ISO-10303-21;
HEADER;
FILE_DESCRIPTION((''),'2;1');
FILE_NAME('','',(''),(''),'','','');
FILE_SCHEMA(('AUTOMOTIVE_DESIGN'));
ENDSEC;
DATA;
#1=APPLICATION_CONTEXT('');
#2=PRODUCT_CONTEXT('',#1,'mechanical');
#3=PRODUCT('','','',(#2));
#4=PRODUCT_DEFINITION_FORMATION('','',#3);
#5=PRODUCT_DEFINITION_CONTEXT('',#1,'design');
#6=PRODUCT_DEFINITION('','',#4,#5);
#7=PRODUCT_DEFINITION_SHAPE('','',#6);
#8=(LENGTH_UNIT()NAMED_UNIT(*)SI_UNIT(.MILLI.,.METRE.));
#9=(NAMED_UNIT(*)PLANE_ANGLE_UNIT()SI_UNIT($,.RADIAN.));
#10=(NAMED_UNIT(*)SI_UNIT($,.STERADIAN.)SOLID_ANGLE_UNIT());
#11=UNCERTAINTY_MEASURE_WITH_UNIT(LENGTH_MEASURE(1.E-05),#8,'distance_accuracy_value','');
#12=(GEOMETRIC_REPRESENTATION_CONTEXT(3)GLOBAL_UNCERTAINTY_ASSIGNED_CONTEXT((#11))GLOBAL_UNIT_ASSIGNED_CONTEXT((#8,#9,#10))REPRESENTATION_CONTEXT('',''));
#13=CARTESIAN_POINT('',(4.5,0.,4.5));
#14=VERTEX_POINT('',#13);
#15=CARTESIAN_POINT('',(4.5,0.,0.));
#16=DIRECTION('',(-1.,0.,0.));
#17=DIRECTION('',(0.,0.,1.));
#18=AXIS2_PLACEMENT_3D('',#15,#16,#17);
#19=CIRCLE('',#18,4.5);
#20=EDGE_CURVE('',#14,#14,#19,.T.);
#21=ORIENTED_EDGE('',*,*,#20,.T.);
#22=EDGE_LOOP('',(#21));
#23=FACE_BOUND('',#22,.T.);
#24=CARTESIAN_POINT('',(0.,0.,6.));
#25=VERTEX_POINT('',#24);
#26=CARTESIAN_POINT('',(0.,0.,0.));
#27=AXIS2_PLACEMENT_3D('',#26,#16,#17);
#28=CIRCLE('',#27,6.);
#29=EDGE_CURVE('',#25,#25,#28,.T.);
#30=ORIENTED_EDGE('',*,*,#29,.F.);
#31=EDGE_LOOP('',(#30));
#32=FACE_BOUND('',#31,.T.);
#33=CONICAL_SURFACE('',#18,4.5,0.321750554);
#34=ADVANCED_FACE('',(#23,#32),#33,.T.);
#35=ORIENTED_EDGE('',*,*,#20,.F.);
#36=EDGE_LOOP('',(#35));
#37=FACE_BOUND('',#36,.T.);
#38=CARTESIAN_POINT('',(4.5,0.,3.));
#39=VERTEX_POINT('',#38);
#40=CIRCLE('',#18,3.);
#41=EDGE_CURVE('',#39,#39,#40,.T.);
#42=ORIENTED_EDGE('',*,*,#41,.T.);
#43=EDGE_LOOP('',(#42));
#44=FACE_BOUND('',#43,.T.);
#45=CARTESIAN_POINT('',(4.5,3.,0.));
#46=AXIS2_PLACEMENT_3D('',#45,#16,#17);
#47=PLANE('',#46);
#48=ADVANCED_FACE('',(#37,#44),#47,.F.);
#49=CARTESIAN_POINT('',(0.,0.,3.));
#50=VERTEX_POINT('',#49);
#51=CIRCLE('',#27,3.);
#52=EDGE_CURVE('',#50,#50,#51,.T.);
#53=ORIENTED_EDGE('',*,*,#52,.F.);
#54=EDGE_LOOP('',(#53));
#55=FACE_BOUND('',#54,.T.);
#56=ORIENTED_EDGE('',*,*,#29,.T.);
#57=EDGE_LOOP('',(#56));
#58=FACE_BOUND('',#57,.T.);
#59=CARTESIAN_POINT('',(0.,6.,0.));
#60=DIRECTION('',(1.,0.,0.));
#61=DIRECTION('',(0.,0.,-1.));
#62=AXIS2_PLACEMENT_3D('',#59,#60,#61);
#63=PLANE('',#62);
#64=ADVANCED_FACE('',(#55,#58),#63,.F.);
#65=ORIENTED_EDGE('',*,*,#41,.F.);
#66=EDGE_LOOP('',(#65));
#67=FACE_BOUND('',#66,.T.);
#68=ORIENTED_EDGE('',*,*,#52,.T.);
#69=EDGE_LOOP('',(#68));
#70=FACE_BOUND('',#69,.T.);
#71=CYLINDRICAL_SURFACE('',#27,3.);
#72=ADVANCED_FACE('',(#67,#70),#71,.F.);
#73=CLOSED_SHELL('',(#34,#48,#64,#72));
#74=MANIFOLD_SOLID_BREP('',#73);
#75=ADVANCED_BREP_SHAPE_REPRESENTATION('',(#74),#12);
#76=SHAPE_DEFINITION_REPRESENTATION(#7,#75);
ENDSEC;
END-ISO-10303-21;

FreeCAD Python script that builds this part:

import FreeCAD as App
import Part
import Sketcher
from FreeCAD import Vector


def add_polygon(sketch, points):
    """Adds a closed chain of lines whose ends are joined by coincident constraints."""
    first, n = sketch.GeometryCount, len(points)
    for a, b in zip(points, points[1:] + points[:1]):
        sketch.addGeometry(Part.LineSegment(App.Vector(*a, 0), App.Vector(*b, 0)), False)
    for i in range(n):
        sketch.addConstraint(Sketcher.Constraint("Coincident", first + i, 2, first + (i + 1) % n, 1))

doc = App.newDocument("Part")
body = doc.addObject("PartDesign::Body", "Body")

# Sketch on XY plane
sketch1 = body.newObject("Sketcher::SketchObject", "Sketch")
sketch1.AttachmentSupport = (doc.getObject("XY_Plane"), [""])
sketch1.MapMode = "FlatFace"
add_polygon(sketch1, [(0, 3), (4.5, 3), (4.5, 4.5), (0, 6)])  # lines 0-3
sketch1.addConstraint([
    Sketcher.Constraint("Horizontal", 0),
    Sketcher.Constraint("Vertical", 1),
    Sketcher.Constraint("Vertical", 3),
    Sketcher.Constraint("PointOnObject", 2, 2, -2),
    Sketcher.Constraint("DistanceY", 3, 2, 3, 1, 3.0),
    Sketcher.Constraint("DistanceX", 0, 1, 0, 2, 4.5),
    Sketcher.Constraint("DistanceY", 1, 1, 1, 2, 1.5),
    Sketcher.Constraint("DistanceY", -1, 1, 0, 2, 3.0),
])
revolution = body.newObject("PartDesign::Revolution", "Revolution")
revolution.Profile = sketch1
revolution.ReferenceAxis = (sketch1, ["H_Axis"])
revolution.Angle = 360

doc.recompute()
